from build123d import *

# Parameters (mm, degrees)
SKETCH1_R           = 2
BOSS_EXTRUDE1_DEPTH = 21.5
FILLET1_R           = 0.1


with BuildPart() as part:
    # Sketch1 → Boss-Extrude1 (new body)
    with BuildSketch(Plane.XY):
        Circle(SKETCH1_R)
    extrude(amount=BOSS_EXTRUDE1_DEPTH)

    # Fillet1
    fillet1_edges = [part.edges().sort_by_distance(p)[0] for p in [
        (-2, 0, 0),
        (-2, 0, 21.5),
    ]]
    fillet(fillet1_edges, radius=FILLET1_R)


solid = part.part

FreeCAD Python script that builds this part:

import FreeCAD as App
import Part
import Sketcher
from FreeCAD import Vector


def edges_at(feature, points):
    """Names of the edges that pass closest to the given points."""
    edges = feature.Shape.Edges
    near = lambda p: min(range(len(edges)), key=lambda i: edges[i].distToShape(Part.Vertex(*p))[0])
    return sorted({f"Edge{near(p) + 1}" for p in points})

doc = App.newDocument("Part")
body = doc.addObject("PartDesign::Body", "Body")

sketch1 = doc.addObject("Sketcher::SketchObject", "Sketch")
body.addObject(sketch1)
sketch1.AttachmentSupport = (doc.XY_Plane, [""])
sketch1.MapMode = "FlatFace"
sketch1.addGeometry(Part.Circle(Vector(0, 0, 0), Vector(0, 0, 1), 2), False)
sketch1.addConstraint(Sketcher.Constraint("Coincident", 0, 3, -1, 1))
sketch1.addConstraint(Sketcher.Constraint("Diameter", 0, 4.0))
pad1 = doc.addObject("PartDesign::Pad", "Pad")
body.addObject(pad1)
pad1.Profile = sketch1
pad1.Length = 21.5
doc.recompute()

fillet = doc.addObject("PartDesign::Fillet", "Fillet")
body.addObject(fillet)
fillet.Base = (pad1, edges_at(pad1, [(-2, 0, 0), (-2, 0, 21.5)]))
fillet.Radius = 0.1

doc.recompute()
